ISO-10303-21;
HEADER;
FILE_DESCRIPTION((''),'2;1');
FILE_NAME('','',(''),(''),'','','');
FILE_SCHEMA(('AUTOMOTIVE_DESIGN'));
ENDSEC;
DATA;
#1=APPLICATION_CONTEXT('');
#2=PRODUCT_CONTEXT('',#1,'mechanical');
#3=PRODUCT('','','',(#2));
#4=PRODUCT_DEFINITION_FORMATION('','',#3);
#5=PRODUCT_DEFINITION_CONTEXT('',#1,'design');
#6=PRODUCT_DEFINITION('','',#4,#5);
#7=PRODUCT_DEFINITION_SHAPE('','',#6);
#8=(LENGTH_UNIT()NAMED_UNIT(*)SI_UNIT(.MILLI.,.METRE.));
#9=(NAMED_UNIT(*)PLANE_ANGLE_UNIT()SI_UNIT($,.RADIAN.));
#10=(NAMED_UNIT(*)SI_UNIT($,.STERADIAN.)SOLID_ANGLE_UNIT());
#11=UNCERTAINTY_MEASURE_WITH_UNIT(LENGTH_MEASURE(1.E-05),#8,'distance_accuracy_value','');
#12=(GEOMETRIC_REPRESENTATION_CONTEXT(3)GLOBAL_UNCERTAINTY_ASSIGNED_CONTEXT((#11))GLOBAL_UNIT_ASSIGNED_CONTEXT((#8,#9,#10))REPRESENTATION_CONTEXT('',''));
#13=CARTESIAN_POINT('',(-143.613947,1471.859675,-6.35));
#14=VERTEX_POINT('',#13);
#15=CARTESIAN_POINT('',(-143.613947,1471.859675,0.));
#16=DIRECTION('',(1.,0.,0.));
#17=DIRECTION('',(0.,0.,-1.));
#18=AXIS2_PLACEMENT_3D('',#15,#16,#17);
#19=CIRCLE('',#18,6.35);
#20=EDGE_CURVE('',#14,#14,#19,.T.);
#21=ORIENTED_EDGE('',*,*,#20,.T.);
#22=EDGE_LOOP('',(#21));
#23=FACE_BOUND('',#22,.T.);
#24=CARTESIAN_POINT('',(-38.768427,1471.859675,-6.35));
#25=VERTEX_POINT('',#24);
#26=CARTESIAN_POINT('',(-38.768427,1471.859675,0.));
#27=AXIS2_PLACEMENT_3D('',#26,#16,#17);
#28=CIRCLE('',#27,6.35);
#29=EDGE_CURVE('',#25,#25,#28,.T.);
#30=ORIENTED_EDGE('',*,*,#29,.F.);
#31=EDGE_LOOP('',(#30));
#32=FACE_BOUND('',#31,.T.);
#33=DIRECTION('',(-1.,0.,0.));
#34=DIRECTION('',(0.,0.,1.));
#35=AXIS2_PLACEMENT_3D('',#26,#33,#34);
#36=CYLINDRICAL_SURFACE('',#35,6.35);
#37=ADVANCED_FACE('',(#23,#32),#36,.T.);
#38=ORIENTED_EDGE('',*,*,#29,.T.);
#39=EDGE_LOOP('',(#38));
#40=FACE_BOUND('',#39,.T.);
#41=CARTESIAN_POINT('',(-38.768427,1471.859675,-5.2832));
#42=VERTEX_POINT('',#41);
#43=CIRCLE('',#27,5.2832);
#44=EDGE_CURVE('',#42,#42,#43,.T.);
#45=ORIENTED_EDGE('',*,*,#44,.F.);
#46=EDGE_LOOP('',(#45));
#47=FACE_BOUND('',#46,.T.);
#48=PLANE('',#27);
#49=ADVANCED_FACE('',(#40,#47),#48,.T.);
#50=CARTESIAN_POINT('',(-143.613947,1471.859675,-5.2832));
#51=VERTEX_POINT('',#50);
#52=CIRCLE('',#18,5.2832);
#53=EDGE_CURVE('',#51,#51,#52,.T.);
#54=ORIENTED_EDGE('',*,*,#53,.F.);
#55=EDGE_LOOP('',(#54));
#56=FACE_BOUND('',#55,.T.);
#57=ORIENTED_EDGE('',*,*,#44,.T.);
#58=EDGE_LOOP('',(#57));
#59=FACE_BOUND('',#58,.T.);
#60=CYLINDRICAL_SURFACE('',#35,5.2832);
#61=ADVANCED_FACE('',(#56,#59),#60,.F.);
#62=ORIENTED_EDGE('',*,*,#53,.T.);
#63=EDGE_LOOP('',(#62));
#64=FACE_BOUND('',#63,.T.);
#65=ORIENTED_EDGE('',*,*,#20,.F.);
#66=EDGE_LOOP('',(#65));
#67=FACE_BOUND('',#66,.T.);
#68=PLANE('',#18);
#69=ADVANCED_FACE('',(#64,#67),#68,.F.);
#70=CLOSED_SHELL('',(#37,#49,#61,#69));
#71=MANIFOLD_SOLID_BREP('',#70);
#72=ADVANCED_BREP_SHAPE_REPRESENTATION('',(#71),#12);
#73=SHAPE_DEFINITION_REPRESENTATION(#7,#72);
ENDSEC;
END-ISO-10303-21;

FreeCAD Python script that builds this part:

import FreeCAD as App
import Part
import Sketcher
Q = App.Units.Quantity

doc = App.newDocument("Part")
body = doc.addObject("PartDesign::Body", "Body")

# Sketch on YZ plane
sketch1 = body.newObject("Sketcher::SketchObject", "Sketch")
sketch1.AttachmentSupport = (doc.getObject("YZ_Plane"), [""])
sketch1.MapMode = "FlatFace"
sketch1.AttachmentOffset = App.Placement(App.Vector(0, 0, -143.613947), App.Rotation())
sketch1.addGeometry(Part.Circle(App.Vector(1472, 0, 0), App.Vector(0, 0, 1), 6), False)
sketch1.addGeometry(Part.Circle(App.Vector(1472, 0, 0), App.Vector(0, 0, 1), 5), False)
sketch1.addConstraint(Sketcher.Constraint("Coincident", 1, 3, 0, 3))
sketch1.addConstraint(Sketcher.Constraint("PointOnObject", 0, 3, -1))
sketch1.addConstraint(Sketcher.Constraint("Diameter", 0, Q("0.5 in")))
sketch1.addConstraint(Sketcher.Constraint("Diameter", 1, Q("0.416 in")))
sketch1.addConstraint(Sketcher.Constraint("DistanceX", -1, 1, 0, 3, 1471.859675))
pad1 = body.newObject("PartDesign::Pad", "Pad")
pad1.Profile = sketch1
pad1.Length = 104.84552

doc.recompute()
